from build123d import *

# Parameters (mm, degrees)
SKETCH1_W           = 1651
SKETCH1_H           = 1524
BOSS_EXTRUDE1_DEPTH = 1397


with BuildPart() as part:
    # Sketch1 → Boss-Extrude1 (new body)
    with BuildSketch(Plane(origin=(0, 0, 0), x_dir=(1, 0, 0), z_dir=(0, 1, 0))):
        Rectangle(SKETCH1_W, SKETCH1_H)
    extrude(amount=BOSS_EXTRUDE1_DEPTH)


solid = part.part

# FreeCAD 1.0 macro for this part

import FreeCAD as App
import Part
import Sketcher

V = App.Vector
Q = App.Units.Quantity

doc = App.newDocument("Part")
body = doc.addObject("PartDesign::Body", "Body")

sketch1 = body.newObject("Sketcher::SketchObject", "Sketch")
sketch1.AttachmentSupport = (doc.getObject("XZ_Plane"), [""])
sketch1.MapMode = "FlatFace"
sketch1.addGeometry(Part.LineSegment(V(-826, -762, 0), V(-826, 762, 0)), False)
sketch1.addGeometry(Part.LineSegment(V(-826, 762, 0), V(826, 762, 0)), False)
sketch1.addGeometry(Part.LineSegment(V(826, 762, 0), V(826, -762, 0)), False)
sketch1.addGeometry(Part.LineSegment(V(826, -762, 0), V(-826, -762, 0)), False)
sketch1.addConstraint(Sketcher.Constraint("Coincident", 0, 2, 1, 1))
sketch1.addConstraint(Sketcher.Constraint("Coincident", 1, 2, 2, 1))
sketch1.addConstraint(Sketcher.Constraint("Coincident", 2, 2, 3, 1))
sketch1.addConstraint(Sketcher.Constraint("Coincident", 3, 2, 0, 1))
sketch1.addConstraint(Sketcher.Constraint("Vertical", 0))
sketch1.addConstraint(Sketcher.Constraint("Horizontal", 1))
sketch1.addConstraint(Sketcher.Constraint("Vertical", 2))
sketch1.addConstraint(Sketcher.Constraint("Horizontal", 3))
sketch1.addConstraint(Sketcher.Constraint("Symmetric", 0, 2, 2, 2, -1, 1))
sketch1.addConstraint(Sketcher.Constraint("DistanceX", 1, 1, 1, 2, Q("65 in")))
sketch1.addConstraint(Sketcher.Constraint("DistanceY", 0, 1, 0, 2, Q("60 in")))
pad1 = body.newObject("PartDesign::Pad", "Pad")
pad1.Profile = sketch1
pad1.Length = Q("55 in")
pad1.Reversed = True

doc.recompute()
